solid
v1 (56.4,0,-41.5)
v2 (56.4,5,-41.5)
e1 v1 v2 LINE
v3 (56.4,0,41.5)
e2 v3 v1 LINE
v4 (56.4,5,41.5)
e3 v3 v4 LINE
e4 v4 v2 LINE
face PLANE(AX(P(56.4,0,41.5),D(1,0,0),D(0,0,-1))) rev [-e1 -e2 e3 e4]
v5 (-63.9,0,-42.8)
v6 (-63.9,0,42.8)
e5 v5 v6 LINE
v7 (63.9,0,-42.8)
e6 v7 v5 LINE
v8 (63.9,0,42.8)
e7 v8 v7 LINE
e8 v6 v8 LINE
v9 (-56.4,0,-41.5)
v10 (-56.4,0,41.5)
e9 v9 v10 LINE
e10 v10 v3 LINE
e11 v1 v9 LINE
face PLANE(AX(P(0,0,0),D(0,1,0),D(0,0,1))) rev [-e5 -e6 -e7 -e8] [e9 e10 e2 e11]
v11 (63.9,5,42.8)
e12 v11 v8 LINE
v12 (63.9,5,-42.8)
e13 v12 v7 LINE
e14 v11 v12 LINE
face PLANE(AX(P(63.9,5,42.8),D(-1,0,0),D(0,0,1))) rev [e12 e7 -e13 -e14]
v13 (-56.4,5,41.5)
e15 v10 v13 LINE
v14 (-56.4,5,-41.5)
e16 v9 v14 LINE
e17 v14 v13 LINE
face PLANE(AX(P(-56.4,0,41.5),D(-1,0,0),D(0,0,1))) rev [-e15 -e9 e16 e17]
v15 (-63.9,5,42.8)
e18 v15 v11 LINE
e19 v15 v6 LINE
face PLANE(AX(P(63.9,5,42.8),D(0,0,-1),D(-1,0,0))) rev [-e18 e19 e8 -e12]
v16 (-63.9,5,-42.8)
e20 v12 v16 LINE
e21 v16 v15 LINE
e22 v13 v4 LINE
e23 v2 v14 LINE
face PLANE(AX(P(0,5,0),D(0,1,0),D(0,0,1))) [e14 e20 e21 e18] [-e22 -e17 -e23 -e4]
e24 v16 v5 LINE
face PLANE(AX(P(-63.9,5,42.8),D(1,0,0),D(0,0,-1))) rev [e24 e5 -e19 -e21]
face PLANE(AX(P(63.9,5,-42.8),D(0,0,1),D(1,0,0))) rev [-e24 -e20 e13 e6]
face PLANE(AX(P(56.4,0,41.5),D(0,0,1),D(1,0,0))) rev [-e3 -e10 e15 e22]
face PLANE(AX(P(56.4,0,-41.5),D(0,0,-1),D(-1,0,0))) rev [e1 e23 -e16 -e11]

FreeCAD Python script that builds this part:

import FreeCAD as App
import Part
import Sketcher

V = App.Vector


def add_polygon(sketch, points):
    """Adds a closed chain of lines whose ends are joined by coincident constraints."""
    first, n = sketch.GeometryCount, len(points)
    for a, b in zip(points, points[1:] + points[:1]):
        sketch.addGeometry(Part.LineSegment(App.Vector(*a, 0), App.Vector(*b, 0)), False)
    for i in range(n):
        sketch.addConstraint(Sketcher.Constraint("Coincident", first + i, 2, first + (i + 1) % n, 1))

doc = App.newDocument("Part")
params = doc.addObject("Spreadsheet::Sheet", "Params")
for row, (alias, value) in enumerate([
    ("sketch1_width", "127.8 mm"),
    ("sketch1_height", "85.6 mm"),
    ("pad1_length", "5 mm"),
    ("sketch2_height", "83 mm"),
    ("sketch2_width", "112.8 mm"),
    ("pocket1_length", "5 mm"),
], start=1):
    params.set(f"A{row}", alias)
    params.set(f"B{row}", "=" + value)
    params.setAlias(f"B{row}", alias)

body = doc.addObject("PartDesign::Body", "Body")

# Sketch on XZ plane
sketch1 = doc.addObject("Sketcher::SketchObject", "Sketch")
body.addObject(sketch1)
sketch1.AttachmentSupport = (doc.XZ_Plane, [""])
sketch1.MapMode = "FlatFace"
add_polygon(sketch1, [(-64, -43), (-64, 43), (64, 43), (64, -43)])  # lines 0-3
sketch1.addConstraint(Sketcher.Constraint("Vertical", 0))
sketch1.addConstraint(Sketcher.Constraint("Horizontal", 1))
sketch1.addConstraint(Sketcher.Constraint("Vertical", 2))
sketch1.addConstraint(Sketcher.Constraint("Horizontal", 3))
sketch1.addConstraint(Sketcher.Constraint("Symmetric", 0, 2, 2, 2, -1, 1))
sketch1.addConstraint(Sketcher.Constraint("DistanceX", 1, 1, 1, 2, 127.8))
sketch1.addConstraint(Sketcher.Constraint("DistanceY", 0, 1, 0, 2, 85.6))
sketch1.setExpression("Constraints[9]", "Params.sketch1_width")
sketch1.setExpression("Constraints[10]", "Params.sketch1_height")
pad1 = doc.addObject("PartDesign::Pad", "Pad")
body.addObject(pad1)
pad1.Profile = sketch1
pad1.setExpression("Length", "Params.pad1_length")
pad1.Reversed = True

# Sketch on XZ plane
sketch2 = doc.addObject("Sketcher::SketchObject", "Sketch001")
body.addObject(sketch2)
sketch2.AttachmentSupport = (doc.XZ_Plane, [""])
sketch2.MapMode = "FlatFace"
sketch2.AttachmentOffset = App.Placement(V(0, 0, -5), App.Rotation())
add_polygon(sketch2, [(-56, -42), (-56, 42), (56, 42), (56, -42)])  # lines 0-3
sketch2.addConstraint(Sketcher.Constraint("Vertical", 0))
sketch2.addConstraint(Sketcher.Constraint("Horizontal", 1))
sketch2.addConstraint(Sketcher.Constraint("Vertical", 2))
sketch2.addConstraint(Sketcher.Constraint("Horizontal", 3))
sketch2.addConstraint(Sketcher.Constraint("Symmetric", 0, 2, 2, 2, -1, 1))
sketch2.addConstraint(Sketcher.Constraint("DistanceY", 0, 1, 0, 2, 83.0))
sketch2.addConstraint(Sketcher.Constraint("DistanceX", 1, 1, 1, 2, 112.8))
sketch2.setExpression("Constraints[9]", "Params.sketch2_height")
sketch2.setExpression("Constraints[10]", "Params.sketch2_width")
pocket1 = doc.addObject("PartDesign::Pocket", "Pocket")
body.addObject(pocket1)
pocket1.Profile = sketch2
pocket1.setExpression("Length", "Params.pocket1_length")
pocket1.Reversed = True

doc.recompute()
